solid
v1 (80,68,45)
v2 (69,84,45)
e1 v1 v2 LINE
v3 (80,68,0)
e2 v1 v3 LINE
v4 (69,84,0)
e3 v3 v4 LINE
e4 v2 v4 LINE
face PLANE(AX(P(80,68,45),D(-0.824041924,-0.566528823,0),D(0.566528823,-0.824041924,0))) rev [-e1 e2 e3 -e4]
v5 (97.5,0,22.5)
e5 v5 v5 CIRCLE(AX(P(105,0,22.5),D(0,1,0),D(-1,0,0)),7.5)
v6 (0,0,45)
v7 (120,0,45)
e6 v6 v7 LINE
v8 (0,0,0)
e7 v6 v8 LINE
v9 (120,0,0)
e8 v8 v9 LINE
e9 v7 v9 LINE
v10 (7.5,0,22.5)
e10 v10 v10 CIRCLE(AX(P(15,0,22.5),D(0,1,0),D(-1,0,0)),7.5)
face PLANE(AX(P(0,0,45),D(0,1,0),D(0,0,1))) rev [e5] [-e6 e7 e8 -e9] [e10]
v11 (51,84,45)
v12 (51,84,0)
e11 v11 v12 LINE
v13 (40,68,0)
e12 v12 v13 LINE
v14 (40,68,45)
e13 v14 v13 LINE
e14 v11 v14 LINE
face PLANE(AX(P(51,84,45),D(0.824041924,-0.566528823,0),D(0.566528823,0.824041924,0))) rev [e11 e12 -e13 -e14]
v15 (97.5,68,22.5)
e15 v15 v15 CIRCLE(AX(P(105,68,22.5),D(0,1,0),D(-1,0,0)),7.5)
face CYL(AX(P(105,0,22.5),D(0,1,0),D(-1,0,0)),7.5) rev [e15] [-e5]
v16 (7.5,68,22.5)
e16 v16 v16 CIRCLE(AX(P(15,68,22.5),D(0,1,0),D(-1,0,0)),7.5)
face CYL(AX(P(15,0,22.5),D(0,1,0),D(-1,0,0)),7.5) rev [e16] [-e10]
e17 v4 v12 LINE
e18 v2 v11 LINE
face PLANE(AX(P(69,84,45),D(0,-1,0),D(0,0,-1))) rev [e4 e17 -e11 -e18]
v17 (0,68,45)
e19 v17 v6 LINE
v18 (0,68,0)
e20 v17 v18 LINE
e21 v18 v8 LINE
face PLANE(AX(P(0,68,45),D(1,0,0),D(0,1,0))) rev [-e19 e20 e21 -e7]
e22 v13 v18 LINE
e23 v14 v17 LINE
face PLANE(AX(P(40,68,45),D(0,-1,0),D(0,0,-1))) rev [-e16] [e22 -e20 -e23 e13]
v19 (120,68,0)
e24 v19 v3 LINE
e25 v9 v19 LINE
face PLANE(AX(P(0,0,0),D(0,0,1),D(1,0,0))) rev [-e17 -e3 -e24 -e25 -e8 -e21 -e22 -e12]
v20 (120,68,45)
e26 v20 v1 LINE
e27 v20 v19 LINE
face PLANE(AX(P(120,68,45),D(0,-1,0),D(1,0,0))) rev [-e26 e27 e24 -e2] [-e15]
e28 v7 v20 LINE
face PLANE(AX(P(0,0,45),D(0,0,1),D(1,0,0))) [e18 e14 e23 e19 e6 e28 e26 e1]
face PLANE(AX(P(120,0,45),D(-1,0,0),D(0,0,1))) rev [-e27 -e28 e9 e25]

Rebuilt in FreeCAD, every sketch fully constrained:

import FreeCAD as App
import Part
import Sketcher

doc = App.newDocument("Part")
params = doc.addObject("Spreadsheet::Sheet", "Params")
for row, (alias, value) in enumerate([
    ("sketch1_width", "120 mm"),
    ("sketch1_width2", "40 mm"),
    ("sketch1_width3", "18 mm"),
    ("sketch1_height", "68 mm"),
    ("pad1_length", "45 mm"),
    ("sketch2_diameter", "15 mm"),
    ("sketch3_diameter", "15 mm"),
], start=1):
    params.set(f"A{row}", alias)
    params.set(f"B{row}", "=" + value)
    params.setAlias(f"B{row}", alias)

body = doc.addObject("PartDesign::Body", "Body")

sketch1 = doc.addObject("Sketcher::SketchObject", "Sketch")
body.addObject(sketch1)
sketch1.AttachmentSupport = (doc.XY_Plane, [""])
sketch1.MapMode = "FlatFace"
sketch1.addGeometry([
    Part.LineSegment(App.Vector(0, 0, 0), App.Vector(120, 0, 0)),
    Part.LineSegment(App.Vector(120, 0, 0), App.Vector(120, 68, 0)),
    Part.LineSegment(App.Vector(120, 68, 0), App.Vector(80, 68, 0)),
    Part.LineSegment(App.Vector(80, 68, 0), App.Vector(69, 84, 0)),
    Part.LineSegment(App.Vector(69, 84, 0), App.Vector(51, 84, 0)),
    Part.LineSegment(App.Vector(51, 84, 0), App.Vector(40, 68, 0)),
    Part.LineSegment(App.Vector(40, 68, 0), App.Vector(0, 68, 0)),
    Part.LineSegment(App.Vector(0, 68, 0), App.Vector(0, 0, 0)),
], False)
sketch1.addConstraint([
    Sketcher.Constraint("Coincident", 0, 2, 1, 1),
    Sketcher.Constraint("Coincident", 1, 2, 2, 1),
    Sketcher.Constraint("Coincident", 2, 2, 3, 1),
    Sketcher.Constraint("Coincident", 3, 2, 4, 1),
    Sketcher.Constraint("Coincident", 4, 2, 5, 1),
    Sketcher.Constraint("Coincident", 5, 2, 6, 1),
    Sketcher.Constraint("Coincident", 6, 2, 7, 1),
    Sketcher.Constraint("Coincident", 7, 2, 0, 1),
    Sketcher.Constraint("Horizontal", 0),
    Sketcher.Constraint("Vertical", 1),
    Sketcher.Constraint("Horizontal", 2),
    Sketcher.Constraint("Horizontal", 4),
    Sketcher.Constraint("Horizontal", 6),
    Sketcher.Constraint("Vertical", 7),
    Sketcher.Constraint("Coincident", 7, 2, -1, 1),
    Sketcher.Constraint("Horizontal", 2, 2, 5, 2),
    Sketcher.Constraint("Equal", 2, 6),
    Sketcher.Constraint("Equal", 3, 5),
    Sketcher.Constraint("DistanceX", 0, 1, 0, 2, 120.0),
    Sketcher.Constraint("DistanceX", 2, 2, 2, 1, 40.0),
    Sketcher.Constraint("DistanceX", 4, 2, 4, 1, 18.0),
    Sketcher.Constraint("DistanceY", 1, 1, 1, 2, 68.0),
    Sketcher.Constraint("DistanceY", -1, 1, 3, 2, 84.0),
])
sketch1.setExpression("Constraints[18]", "Params.sketch1_width")
sketch1.setExpression("Constraints[19]", "Params.sketch1_width2")
sketch1.setExpression("Constraints[20]", "Params.sketch1_width3")
sketch1.setExpression("Constraints[21]", "Params.sketch1_height")
pad1 = doc.addObject("PartDesign::Pad", "Pad")
body.addObject(pad1)
pad1.Profile = sketch1
pad1.setExpression("Length", "Params.pad1_length")

sketch2 = doc.addObject("Sketcher::SketchObject", "Sketch001")
body.addObject(sketch2)
sketch2.AttachmentSupport = (doc.XZ_Plane, [""])
sketch2.MapMode = "FlatFace"
sketch2.AttachmentOffset = App.Placement(App.Vector(0, 0, -68), App.Rotation())
sketch2.addGeometry([
    Part.Circle(App.Vector(105, 22, 0), App.Vector(0, 0, 1), 8),
    Part.Circle(App.Vector(15, 22, 0), App.Vector(0, 0, 1), 8),
], False)
sketch2.addConstraint([
    Sketcher.Constraint("Equal", 0, 1),
    Sketcher.Constraint("Horizontal", 0, 3, 1, 3),
    Sketcher.Constraint("Diameter", 0, 15.0),
    Sketcher.Constraint("DistanceX", -1, 1, 0, 3, 105.0),
    Sketcher.Constraint("DistanceX", -1, 1, 1, 3, 15.0),
    Sketcher.Constraint("DistanceY", -1, 1, 0, 3, 22.5),
])
sketch2.setExpression("Constraints[2]", "Params.sketch2_diameter")
pad2 = doc.addObject("PartDesign::Pad", "Pad001")
body.addObject(pad2)
pad2.Profile = sketch2
pad2.Type = "UpToLast"

sketch3 = doc.addObject("Sketcher::SketchObject", "Sketch002")
body.addObject(sketch3)
sketch3.AttachmentSupport = (doc.XZ_Plane, [""])
sketch3.MapMode = "FlatFace"
sketch3.AttachmentOffset = App.Placement(App.Vector(0, 0, -68), App.Rotation())
sketch3.addGeometry([
    Part.Circle(App.Vector(105, 22, 0), App.Vector(0, 0, 1), 8),
    Part.Circle(App.Vector(15, 22, 0), App.Vector(0, 0, 1), 8),
], False)
sketch3.addConstraint([
    Sketcher.Constraint("Equal", 0, 1),
    Sketcher.Constraint("Horizontal", 0, 3, 1, 3),
    Sketcher.Constraint("Diameter", 0, 15.0),
    Sketcher.Constraint("DistanceX", -1, 1, 0, 3, 105.0),
    Sketcher.Constraint("DistanceX", -1, 1, 1, 3, 15.0),
    Sketcher.Constraint("DistanceY", -1, 1, 0, 3, 22.5),
])
sketch3.setExpression("Constraints[2]", "Params.sketch3_diameter")
pocket1 = doc.addObject("PartDesign::Pocket", "Pocket")
body.addObject(pocket1)
pocket1.Profile = sketch3
pocket1.Type = "ThroughAll"
pocket1.Reversed = True

doc.recompute()
